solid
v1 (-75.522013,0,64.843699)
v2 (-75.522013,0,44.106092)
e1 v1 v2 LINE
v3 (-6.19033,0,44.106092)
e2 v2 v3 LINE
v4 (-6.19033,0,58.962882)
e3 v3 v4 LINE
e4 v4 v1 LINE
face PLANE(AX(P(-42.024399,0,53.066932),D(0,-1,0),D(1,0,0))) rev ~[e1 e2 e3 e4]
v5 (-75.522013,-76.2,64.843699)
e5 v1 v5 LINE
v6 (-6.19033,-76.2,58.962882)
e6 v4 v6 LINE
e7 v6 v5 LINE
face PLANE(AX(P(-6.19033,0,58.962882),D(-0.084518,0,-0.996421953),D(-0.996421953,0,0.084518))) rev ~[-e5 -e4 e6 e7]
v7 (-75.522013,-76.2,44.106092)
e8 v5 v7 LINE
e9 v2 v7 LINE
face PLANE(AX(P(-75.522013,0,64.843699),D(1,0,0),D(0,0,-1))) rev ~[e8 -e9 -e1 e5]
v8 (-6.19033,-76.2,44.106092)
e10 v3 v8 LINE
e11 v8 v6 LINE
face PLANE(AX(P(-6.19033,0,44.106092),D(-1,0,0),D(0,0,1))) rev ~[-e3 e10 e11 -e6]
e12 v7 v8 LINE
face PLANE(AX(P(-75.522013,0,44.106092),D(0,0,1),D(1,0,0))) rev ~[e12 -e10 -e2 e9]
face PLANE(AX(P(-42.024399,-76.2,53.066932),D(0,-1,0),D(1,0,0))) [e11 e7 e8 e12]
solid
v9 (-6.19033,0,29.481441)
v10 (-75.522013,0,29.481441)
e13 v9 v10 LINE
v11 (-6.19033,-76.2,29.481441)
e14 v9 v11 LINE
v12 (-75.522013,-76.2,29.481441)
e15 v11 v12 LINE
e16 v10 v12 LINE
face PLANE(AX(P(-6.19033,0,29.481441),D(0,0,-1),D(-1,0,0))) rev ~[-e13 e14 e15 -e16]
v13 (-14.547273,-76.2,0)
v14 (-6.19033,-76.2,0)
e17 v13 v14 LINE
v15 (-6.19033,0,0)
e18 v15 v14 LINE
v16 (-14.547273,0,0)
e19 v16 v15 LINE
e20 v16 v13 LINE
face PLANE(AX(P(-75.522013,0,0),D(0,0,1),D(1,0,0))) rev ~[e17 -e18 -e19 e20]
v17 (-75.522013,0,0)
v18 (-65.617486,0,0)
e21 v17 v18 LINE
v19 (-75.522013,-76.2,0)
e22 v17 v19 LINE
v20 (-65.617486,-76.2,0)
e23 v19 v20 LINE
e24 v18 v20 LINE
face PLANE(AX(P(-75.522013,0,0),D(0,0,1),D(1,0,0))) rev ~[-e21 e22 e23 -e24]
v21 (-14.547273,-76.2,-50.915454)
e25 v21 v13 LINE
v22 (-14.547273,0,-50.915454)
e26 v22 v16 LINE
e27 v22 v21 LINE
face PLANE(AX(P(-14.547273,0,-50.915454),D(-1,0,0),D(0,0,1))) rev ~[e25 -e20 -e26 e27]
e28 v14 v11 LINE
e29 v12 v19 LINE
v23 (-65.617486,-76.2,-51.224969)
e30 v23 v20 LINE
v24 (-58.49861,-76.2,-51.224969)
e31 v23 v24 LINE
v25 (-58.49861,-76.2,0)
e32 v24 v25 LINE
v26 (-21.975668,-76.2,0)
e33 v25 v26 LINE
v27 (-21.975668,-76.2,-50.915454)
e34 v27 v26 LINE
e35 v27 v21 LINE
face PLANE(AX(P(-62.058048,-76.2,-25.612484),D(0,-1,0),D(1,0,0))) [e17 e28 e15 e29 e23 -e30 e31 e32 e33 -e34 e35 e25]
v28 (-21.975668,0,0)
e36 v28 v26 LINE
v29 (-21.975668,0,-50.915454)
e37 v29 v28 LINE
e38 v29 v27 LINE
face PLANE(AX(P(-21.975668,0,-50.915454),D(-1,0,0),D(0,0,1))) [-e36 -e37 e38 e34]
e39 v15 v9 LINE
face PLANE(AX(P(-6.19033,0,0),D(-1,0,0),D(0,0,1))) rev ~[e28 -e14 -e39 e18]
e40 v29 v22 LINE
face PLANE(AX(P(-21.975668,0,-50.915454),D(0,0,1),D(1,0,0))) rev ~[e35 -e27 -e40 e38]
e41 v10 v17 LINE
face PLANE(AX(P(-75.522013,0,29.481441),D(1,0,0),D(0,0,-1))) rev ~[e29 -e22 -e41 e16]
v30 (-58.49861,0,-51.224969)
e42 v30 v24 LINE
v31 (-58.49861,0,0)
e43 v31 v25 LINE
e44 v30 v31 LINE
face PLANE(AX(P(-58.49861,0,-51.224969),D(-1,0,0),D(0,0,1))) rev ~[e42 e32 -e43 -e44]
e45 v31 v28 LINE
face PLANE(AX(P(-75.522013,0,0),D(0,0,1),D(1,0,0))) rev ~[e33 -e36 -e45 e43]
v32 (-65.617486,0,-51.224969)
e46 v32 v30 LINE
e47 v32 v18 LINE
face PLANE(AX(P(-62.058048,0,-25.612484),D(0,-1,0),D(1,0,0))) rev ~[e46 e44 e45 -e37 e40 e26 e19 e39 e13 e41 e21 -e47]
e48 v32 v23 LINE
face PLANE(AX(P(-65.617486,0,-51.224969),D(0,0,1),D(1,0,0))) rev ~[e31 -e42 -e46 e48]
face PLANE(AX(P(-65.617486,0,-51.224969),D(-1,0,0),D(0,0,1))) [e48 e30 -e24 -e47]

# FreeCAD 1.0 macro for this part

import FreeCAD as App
import Part
import Sketcher
Q = App.Units.Quantity


def add_polygon(sketch, points):
    """Adds a closed chain of lines whose ends are joined by coincident constraints."""
    first, n = sketch.GeometryCount, len(points)
    for a, b in zip(points, points[1:] + points[:1]):
        sketch.addGeometry(Part.LineSegment(App.Vector(*a, 0), App.Vector(*b, 0)), False)
    for i in range(n):
        sketch.addConstraint(Sketcher.Constraint("Coincident", first + i, 2, first + (i + 1) % n, 1))

doc = App.newDocument("Part")
params = doc.addObject("Spreadsheet::Sheet", "Params")
for row, (alias, value) in enumerate([
    ("pad1_length", "3 in"),
    ("pad2_length", "3 in"),
    ("pad3_length", "3 in"),
], start=1):
    params.set(f"A{row}", alias)
    params.set(f"B{row}", "=" + value)
    params.setAlias(f"B{row}", alias)

body = doc.addObject("PartDesign::Body", "Body")
body.AllowCompound = True

sketch1 = body.newObject("Sketcher::SketchObject", "Sketch")
sketch1.AttachmentSupport = (doc.getObject("XZ_Plane"), [""])
sketch1.MapMode = "FlatFace"
add_polygon(sketch1, [(-76, 65), (-76, 44), (-6, 44), (-6, 59)])
add_polygon(sketch1, [(-76, 0), (-6, 0), (-6, 29), (-76, 29)])
sketch1.addConstraint(Sketcher.Constraint("Vertical", 0))
sketch1.addConstraint(Sketcher.Constraint("Horizontal", 1))
sketch1.addConstraint(Sketcher.Constraint("Vertical", 2))
sketch1.addConstraint(Sketcher.Constraint("Horizontal", 4))
sketch1.addConstraint(Sketcher.Constraint("Vertical", 5))
sketch1.addConstraint(Sketcher.Constraint("Horizontal", 6))
sketch1.addConstraint(Sketcher.Constraint("Vertical", 7))
sketch1.addConstraint(Sketcher.Constraint("PointOnObject", 4, 2, -1))
sketch1.addConstraint(Sketcher.Constraint("Vertical", 2, 2, 4, 2))
sketch1.addConstraint(Sketcher.Constraint("Vertical", 3, 2, 6, 2))
sketch1.addConstraint(Sketcher.Constraint("DistanceY", 2, 1, 2, 2, Q("14.85679 mm")))
sketch1.addConstraint(Sketcher.Constraint("DistanceY", 5, 1, 5, 2, Q("29.481441 mm")))
sketch1.addConstraint(Sketcher.Constraint("DistanceY", -1, 1, 3, 2, Q("64.843699 mm")))
sketch1.addConstraint(Sketcher.Constraint("DistanceX", 1, 1, 1, 2, Q("69.331683 mm")))
sketch1.addConstraint(Sketcher.Constraint("DistanceY", 0, 2, 0, 1, Q("20.737607 mm")))
sketch1.addConstraint(Sketcher.Constraint("DistanceX", 1, 2, -1, 1, Q("6.19033 mm")))
pad1 = body.newObject("PartDesign::Pad", "Pad")
pad1.Profile = sketch1
pad1.setExpression("Length", "Params.pad1_length")

sketch2 = body.newObject("Sketcher::SketchObject", "Sketch001")
sketch2.AttachmentSupport = (doc.getObject("XZ_Plane"), [""])
sketch2.MapMode = "FlatFace"
add_polygon(sketch2, [(-66, 0), (-66, -51), (-58, -51), (-58, 0)])
sketch2.addConstraint(Sketcher.Constraint("Vertical", 0))
sketch2.addConstraint(Sketcher.Constraint("Horizontal", 1))
sketch2.addConstraint(Sketcher.Constraint("Vertical", 2))
sketch2.addConstraint(Sketcher.Constraint("Horizontal", 3))
sketch2.addConstraint(Sketcher.Constraint("PointOnObject", 2, 2, -1))
sketch2.addConstraint(Sketcher.Constraint("DistanceY", 0, 2, 0, 1, Q("51.224969 mm")))
sketch2.addConstraint(Sketcher.Constraint("DistanceX", 1, 1, 1, 2, Q("7.118877 mm")))
sketch2.addConstraint(Sketcher.Constraint("DistanceX", 1, 2, -1, 1, Q("58.49861 mm")))
pad2 = body.newObject("PartDesign::Pad", "Pad001")
pad2.Profile = sketch2
pad2.setExpression("Length", "Params.pad2_length")

sketch3 = body.newObject("Sketcher::SketchObject", "Sketch002")
sketch3.AttachmentSupport = (doc.getObject("XZ_Plane"), [""])
sketch3.MapMode = "FlatFace"
add_polygon(sketch3, [(-22, 0), (-22, -51), (-15, -51), (-15, 0)])
sketch3.addConstraint(Sketcher.Constraint("Vertical", 0))
sketch3.addConstraint(Sketcher.Constraint("Horizontal", 1))
sketch3.addConstraint(Sketcher.Constraint("Vertical", 2))
sketch3.addConstraint(Sketcher.Constraint("Horizontal", 3))
sketch3.addConstraint(Sketcher.Constraint("PointOnObject", 2, 2, -1))
sketch3.addConstraint(Sketcher.Constraint("DistanceX", 1, 1, 1, 2, Q("7.428395 mm")))
sketch3.addConstraint(Sketcher.Constraint("DistanceY", 0, 2, 0, 1, Q("50.915454 mm")))
sketch3.addConstraint(Sketcher.Constraint("DistanceX", 0, 2, -1, 1, Q("21.975668 mm")))
pad3 = body.newObject("PartDesign::Pad", "Pad002")
pad3.Profile = sketch3
pad3.setExpression("Length", "Params.pad3_length")

doc.recompute()
